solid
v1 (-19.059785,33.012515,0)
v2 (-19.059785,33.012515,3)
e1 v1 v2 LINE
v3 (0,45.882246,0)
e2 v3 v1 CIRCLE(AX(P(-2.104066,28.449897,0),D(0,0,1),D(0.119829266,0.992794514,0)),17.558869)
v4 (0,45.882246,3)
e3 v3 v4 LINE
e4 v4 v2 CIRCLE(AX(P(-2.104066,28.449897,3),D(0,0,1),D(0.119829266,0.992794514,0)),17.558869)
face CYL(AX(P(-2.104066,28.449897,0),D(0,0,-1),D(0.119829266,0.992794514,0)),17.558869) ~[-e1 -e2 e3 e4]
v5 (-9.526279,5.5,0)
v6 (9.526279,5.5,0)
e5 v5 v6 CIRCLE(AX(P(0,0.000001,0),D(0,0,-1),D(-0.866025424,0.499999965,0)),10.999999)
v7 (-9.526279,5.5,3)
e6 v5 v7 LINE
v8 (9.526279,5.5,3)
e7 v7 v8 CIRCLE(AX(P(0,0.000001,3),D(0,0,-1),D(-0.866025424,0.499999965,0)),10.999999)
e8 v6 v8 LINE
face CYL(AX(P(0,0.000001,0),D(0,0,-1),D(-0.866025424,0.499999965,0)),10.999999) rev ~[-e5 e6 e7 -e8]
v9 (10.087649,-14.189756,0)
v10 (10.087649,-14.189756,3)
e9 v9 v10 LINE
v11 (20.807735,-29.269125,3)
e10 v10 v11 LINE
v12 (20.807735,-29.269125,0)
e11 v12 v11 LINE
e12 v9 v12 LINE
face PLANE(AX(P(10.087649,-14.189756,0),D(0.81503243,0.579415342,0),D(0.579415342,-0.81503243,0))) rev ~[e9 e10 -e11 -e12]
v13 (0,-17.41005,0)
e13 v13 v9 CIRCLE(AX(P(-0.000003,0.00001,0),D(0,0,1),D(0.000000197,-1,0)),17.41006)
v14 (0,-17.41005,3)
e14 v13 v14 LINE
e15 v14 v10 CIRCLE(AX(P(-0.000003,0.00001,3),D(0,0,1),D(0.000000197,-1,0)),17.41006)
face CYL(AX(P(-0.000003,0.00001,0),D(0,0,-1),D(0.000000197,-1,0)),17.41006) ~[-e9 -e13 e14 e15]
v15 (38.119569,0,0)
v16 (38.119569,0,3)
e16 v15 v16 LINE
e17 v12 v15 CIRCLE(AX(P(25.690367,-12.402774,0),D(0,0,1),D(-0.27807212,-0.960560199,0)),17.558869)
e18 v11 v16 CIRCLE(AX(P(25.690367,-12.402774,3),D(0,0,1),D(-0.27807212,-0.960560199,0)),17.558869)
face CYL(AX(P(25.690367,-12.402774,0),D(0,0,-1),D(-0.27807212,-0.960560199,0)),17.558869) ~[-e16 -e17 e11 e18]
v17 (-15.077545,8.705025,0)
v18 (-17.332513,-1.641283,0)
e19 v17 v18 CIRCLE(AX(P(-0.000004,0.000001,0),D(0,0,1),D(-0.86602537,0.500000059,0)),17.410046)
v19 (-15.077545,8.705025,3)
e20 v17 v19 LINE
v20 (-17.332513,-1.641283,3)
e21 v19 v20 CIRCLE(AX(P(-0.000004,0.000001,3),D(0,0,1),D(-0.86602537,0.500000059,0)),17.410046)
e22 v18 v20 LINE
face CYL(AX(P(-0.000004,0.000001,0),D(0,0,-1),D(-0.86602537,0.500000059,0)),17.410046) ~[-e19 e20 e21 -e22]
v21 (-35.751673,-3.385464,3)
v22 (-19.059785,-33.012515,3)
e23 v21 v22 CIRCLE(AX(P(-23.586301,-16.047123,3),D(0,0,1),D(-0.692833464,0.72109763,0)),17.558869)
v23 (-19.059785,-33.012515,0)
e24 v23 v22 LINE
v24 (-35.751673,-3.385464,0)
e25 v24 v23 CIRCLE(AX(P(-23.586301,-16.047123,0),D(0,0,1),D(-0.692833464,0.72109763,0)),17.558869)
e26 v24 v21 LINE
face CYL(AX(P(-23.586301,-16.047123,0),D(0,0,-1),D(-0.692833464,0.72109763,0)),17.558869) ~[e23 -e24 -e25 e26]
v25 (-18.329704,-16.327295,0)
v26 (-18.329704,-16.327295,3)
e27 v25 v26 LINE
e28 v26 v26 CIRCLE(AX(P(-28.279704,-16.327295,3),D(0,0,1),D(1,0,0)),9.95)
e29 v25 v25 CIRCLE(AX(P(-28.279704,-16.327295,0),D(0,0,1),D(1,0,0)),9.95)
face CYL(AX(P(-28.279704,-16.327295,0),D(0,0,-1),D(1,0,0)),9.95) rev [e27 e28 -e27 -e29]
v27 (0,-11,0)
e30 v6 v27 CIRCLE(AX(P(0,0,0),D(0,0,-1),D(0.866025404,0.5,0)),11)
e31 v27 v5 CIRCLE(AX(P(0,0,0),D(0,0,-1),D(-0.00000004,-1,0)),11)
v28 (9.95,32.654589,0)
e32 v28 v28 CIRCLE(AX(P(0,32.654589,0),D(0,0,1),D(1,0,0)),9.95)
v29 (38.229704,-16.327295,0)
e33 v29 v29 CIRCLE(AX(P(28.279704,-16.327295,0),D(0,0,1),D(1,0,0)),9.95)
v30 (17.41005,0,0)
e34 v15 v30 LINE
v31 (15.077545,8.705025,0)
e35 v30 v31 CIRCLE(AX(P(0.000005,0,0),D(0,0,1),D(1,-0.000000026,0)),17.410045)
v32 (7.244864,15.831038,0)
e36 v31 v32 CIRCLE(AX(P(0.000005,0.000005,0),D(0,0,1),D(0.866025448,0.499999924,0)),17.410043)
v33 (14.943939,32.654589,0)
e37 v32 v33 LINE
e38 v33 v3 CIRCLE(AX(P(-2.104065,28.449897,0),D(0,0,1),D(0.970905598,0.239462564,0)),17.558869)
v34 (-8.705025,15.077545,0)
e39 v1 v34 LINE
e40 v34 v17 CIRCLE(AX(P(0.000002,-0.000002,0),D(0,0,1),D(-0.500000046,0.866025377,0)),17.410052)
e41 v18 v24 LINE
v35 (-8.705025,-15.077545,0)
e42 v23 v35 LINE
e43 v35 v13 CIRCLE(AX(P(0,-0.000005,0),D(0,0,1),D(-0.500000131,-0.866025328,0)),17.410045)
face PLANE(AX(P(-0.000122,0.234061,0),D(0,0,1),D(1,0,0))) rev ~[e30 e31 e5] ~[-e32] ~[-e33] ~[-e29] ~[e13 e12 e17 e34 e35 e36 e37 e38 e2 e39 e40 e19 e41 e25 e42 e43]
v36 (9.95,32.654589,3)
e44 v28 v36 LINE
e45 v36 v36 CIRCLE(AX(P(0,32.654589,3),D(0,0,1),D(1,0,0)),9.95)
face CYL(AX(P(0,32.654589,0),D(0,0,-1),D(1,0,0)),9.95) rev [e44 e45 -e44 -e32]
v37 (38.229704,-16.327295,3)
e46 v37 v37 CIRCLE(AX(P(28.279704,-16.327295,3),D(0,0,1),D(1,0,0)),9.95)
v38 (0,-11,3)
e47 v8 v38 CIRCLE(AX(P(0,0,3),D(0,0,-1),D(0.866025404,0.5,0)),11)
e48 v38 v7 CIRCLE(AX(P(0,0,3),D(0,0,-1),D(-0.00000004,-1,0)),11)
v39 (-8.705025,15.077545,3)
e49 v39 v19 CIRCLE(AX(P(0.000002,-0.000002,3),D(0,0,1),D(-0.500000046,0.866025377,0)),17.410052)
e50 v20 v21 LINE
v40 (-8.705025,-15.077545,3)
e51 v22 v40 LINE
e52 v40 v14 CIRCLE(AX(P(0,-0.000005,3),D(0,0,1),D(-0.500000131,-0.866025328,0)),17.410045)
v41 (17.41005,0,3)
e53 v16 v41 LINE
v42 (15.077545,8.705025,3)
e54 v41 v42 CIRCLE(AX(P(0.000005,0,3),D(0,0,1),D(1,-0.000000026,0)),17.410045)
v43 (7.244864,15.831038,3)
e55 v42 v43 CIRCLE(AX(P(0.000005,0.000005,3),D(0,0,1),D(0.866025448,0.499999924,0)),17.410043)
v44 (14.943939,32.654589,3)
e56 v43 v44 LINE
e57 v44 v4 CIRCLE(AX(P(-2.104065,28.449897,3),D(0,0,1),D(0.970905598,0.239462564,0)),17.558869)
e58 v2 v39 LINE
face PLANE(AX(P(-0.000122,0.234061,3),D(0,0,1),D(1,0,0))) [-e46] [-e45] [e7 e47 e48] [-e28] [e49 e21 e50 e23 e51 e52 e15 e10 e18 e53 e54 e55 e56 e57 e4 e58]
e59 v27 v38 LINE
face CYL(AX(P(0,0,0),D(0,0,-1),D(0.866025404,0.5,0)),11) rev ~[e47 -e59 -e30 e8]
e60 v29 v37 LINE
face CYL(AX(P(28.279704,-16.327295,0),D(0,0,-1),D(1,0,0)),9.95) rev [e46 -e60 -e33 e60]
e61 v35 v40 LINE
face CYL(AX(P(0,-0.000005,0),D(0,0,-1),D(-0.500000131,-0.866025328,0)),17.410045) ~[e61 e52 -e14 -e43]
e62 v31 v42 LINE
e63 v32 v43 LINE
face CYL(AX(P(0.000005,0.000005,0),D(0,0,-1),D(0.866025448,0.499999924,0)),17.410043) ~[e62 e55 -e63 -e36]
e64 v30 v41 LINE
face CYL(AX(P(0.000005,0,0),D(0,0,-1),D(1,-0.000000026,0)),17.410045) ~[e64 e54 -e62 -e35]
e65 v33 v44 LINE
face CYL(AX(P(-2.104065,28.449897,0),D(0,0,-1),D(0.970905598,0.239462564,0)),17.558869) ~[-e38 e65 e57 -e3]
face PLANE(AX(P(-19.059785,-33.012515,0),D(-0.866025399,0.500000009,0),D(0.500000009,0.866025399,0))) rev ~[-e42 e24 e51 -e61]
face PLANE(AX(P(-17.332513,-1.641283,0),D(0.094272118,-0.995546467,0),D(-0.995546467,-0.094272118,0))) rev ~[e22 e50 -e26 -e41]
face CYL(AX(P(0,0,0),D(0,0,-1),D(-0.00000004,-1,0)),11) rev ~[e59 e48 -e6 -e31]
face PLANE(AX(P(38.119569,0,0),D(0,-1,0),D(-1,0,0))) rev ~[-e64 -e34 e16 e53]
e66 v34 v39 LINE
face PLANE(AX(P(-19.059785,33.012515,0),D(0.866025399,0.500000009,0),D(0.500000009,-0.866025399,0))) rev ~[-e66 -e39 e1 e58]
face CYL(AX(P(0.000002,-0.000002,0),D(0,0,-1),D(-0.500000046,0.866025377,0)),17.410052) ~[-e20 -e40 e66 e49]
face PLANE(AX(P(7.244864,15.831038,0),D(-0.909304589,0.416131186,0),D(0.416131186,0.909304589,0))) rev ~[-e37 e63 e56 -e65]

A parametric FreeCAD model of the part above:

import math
import FreeCAD as App
import Part
import Sketcher

V = App.Vector
Q = App.Units.Quantity

doc = App.newDocument("Part")
body = doc.addObject("PartDesign::Body", "Body")

# Sketch on XY plane
sketch1 = body.newObject("Sketcher::SketchObject", "Sketch")
sketch1.AttachmentSupport = (doc.getObject("XY_Plane"), [""])
sketch1.MapMode = "FlatFace"
sketch1.addGeometry([
    Part.LineSegment(V(7.244864, 15.831038, 0), V(14.943939, 32.654589, 0)),  # 0
    Part.ArcOfCircle(Part.Circle(V(-2.104065, 28.449897, 0), V(0, 0, 1), 17.558869), math.radians(13.854823), math.radians(83.117755)),  # 1
    Part.ArcOfCircle(Part.Circle(V(-2.104066, 28.449897, 0), V(0, 0, 1), 17.558869), math.radians(83.117751), math.radians(164.939022)),  # 2
    Part.LineSegment(V(-19.059785, 33.012515, 0), V(-8.705025, 15.077545, 0)),  # 3
    Part.ArcOfCircle(Part.Circle(V(0.000002, -0.000002, 0), V(0, 0, 1), 17.410052), math.radians(120.000003), math.radians(149.999997)),  # 4
    Part.ArcOfCircle(Part.Circle(V(-0.000004, 0.000001, 0), V(0, 0, 1), 17.410046), math.radians(149.999996), math.radians(185.409435)),  # 5
    Part.LineSegment(V(-17.332513, -1.641283, 0), V(-35.751673, -3.385464, 0)),  # 6
    Part.ArcOfCircle(Part.Circle(V(-23.586301, -16.047123, 0), V(0, 0, 1), 17.558869), math.radians(133.854823), math.radians(284.93902)),  # 7
    Part.LineSegment(V(-19.059785, -33.012515, 0), V(-8.705025, -15.077545, 0)),  # 8
    Part.ArcOfCircle(Part.Circle(V(0, -0.000005, 0), V(0, 0, 1), 17.410045), math.radians(-120.000009), math.radians(-89.999998)),  # 9
    Part.ArcOfCircle(Part.Circle(V(-0.000003, 0.00001, 0), V(0, 0, 1), 17.41006), math.radians(-89.999989), math.radians(-54.590583)),  # 10
    Part.LineSegment(V(10.087649, -14.189756, 0), V(20.807735, -29.269125, 0)),  # 11
    Part.ArcOfCircle(Part.Circle(V(25.690367, -12.402774, 0), V(0, 0, 1), 17.558869), math.radians(-106.145176), math.radians(44.939022)),  # 12
    Part.LineSegment(V(38.119569, 0, 0), V(17.41005, 0, 0)),  # 13
    Part.ArcOfCircle(Part.Circle(V(0.000005, 0, 0), V(0, 0, 1), 17.410045), math.radians(-0.000002), math.radians(30.000009)),  # 14
    Part.ArcOfCircle(Part.Circle(V(0.000005, 0.000005, 0), V(0, 0, 1), 17.410043), math.radians(29.999995), math.radians(65.409436)),  # 15
    Part.Circle(V(-28.279704, -16.327295, 0), V(0, 0, 1), 9.95),  # 16
    Part.Circle(V(28.279704, -16.327295, 0), V(0, 0, 1), 9.95),  # 17
    Part.ArcOfCircle(Part.Circle(V(0, 0, 0), V(0, 0, 1), 11), math.radians(150), math.radians(269.999998)),  # 18
    Part.ArcOfCircle(Part.Circle(V(0, 0.000001, 0), V(0, 0, 1), 10.999999), math.radians(29.999998), math.radians(150.000002)),  # 19
    Part.ArcOfCircle(Part.Circle(V(0, 0, 0), V(0, 0, 1), 11), math.radians(-89.999998), math.radians(30)),  # 20
    Part.Circle(V(0, 32.654589, 0), V(0, 0, 1), 9.95),  # 21
], False)
sketch1.addConstraint([
    Sketcher.Constraint("Coincident", 0, 2, 1, 1),
    Sketcher.Constraint("Tangent", 1, 2, 2, 1),
    Sketcher.Constraint("Coincident", 2, 2, 3, 1),
    Sketcher.Constraint("Coincident", 3, 2, 4, 1),
    Sketcher.Constraint("Tangent", 4, 2, 5, 1),
    Sketcher.Constraint("Coincident", 5, 2, 6, 1),
    Sketcher.Constraint("Coincident", 6, 2, 7, 1),
    Sketcher.Constraint("Coincident", 7, 2, 8, 1),
    Sketcher.Constraint("Coincident", 8, 2, 9, 1),
    Sketcher.Constraint("Tangent", 9, 2, 10, 1),
    Sketcher.Constraint("Coincident", 10, 2, 11, 1),
    Sketcher.Constraint("Coincident", 11, 2, 12, 1),
    Sketcher.Constraint("Coincident", 12, 2, 13, 1),
    Sketcher.Constraint("Coincident", 13, 2, 14, 1),
    Sketcher.Constraint("Tangent", 14, 2, 15, 1),
    Sketcher.Constraint("Coincident", 15, 2, 0, 1),
    Sketcher.Constraint("Tangent", 18, 1, 19, 2),
    Sketcher.Constraint("Tangent", 19, 1, 20, 2),
    Sketcher.Constraint("Tangent", 20, 1, 18, 2),
    Sketcher.Constraint("Horizontal", 13),
    Sketcher.Constraint("Coincident", 4, 3, -1, 1),
    Sketcher.Constraint("Coincident", 9, 3, -1, 1),
    Sketcher.Constraint("Coincident", 14, 3, -1, 1),
    Sketcher.Constraint("Coincident", 18, 3, -1, 1),
    Sketcher.Constraint("Coincident", 10, 3, 5, 3),
    Sketcher.Constraint("Equal", 1, 2),
    Sketcher.Constraint("Equal", 2, 7),
    Sketcher.Constraint("Equal", 5, 9),
    Sketcher.Constraint("Equal", 7, 12),
    Sketcher.Constraint("Equal", 9, 14),
    Sketcher.Constraint("Equal", 14, 15),
    Sketcher.Constraint("Equal", 16, 17),
    Sketcher.Constraint("Equal", 17, 21),
    Sketcher.Constraint("Symmetric", 16, 3, 17, 3, -2),
    Sketcher.Constraint("Symmetric", 2, 2, 7, 2, -1),
    Sketcher.Constraint("PointOnObject", 21, 3, -2),
    Sketcher.Constraint("PointOnObject", 1, 2, -2),
    Sketcher.Constraint("PointOnObject", 9, 2, -2),
    Sketcher.Constraint("PointOnObject", 12, 2, -1),
    Sketcher.Constraint("PointOnObject", 20, 1, -2),
    Sketcher.Constraint("Horizontal", 21, 3, 0, 2),
    Sketcher.Constraint("Horizontal", 4, 2, 14, 2),
    Sketcher.Constraint("Horizontal", 18, 1, 19, 1),
    Sketcher.Constraint("Vertical", 3, 2, 8, 2),
    Sketcher.Constraint("Equal", 0, 6),
    Sketcher.Constraint("Equal", 6, 11),
    Sketcher.Constraint("Radius", 18, 11.0),
    Sketcher.Constraint("Diameter", 16, 19.9),
    Sketcher.Constraint("Angle", 3, Q("-59.999999 deg")),
    Sketcher.Constraint("DistanceY", -1, 1, 18, 1, 5.5),
    Sketcher.Constraint("Radius", 1, 17.558869),
    Sketcher.Constraint("Radius", 4, 17.410052),
    Sketcher.Constraint("DistanceX", 13, 2, 13, 1, 20.709519),
    Sketcher.Constraint("DistanceX", 7, 3, -1, 1, 23.586301),
    Sketcher.Constraint("DistanceY", 4, 3, 1, 3, 28.449899),
    Sketcher.Constraint("DistanceX", 16, 3, 5, 3, 28.2797),
    Sketcher.Constraint("DistanceY", 17, 3, 15, 3, 16.3273),
    Sketcher.Constraint("DistanceX", 10, 2, 13, 2, 7.322401),
    Sketcher.Constraint("Distance", 3, 20.70952),
    Sketcher.Constraint("DistanceY", -1, 1, 21, 3, 32.654589),
    Sketcher.Constraint("DistanceX", -1, 1, 0, 2, 14.943939),
    Sketcher.Constraint("DistanceY", -1, 1, 15, 2, 15.831038),
    Sketcher.Constraint("DistanceY", 12, 3, 9, 3, 12.402769),
    Sketcher.Constraint("DistanceX", 4, 2, 3, 2, 6.37252),
    Sketcher.Constraint("DistanceY", 5, 2, 4, 2, 10.346308),
])
pad1 = body.newObject("PartDesign::Pad", "Pad")
pad1.Profile = sketch1
pad1.Length = 3

doc.recompute()
